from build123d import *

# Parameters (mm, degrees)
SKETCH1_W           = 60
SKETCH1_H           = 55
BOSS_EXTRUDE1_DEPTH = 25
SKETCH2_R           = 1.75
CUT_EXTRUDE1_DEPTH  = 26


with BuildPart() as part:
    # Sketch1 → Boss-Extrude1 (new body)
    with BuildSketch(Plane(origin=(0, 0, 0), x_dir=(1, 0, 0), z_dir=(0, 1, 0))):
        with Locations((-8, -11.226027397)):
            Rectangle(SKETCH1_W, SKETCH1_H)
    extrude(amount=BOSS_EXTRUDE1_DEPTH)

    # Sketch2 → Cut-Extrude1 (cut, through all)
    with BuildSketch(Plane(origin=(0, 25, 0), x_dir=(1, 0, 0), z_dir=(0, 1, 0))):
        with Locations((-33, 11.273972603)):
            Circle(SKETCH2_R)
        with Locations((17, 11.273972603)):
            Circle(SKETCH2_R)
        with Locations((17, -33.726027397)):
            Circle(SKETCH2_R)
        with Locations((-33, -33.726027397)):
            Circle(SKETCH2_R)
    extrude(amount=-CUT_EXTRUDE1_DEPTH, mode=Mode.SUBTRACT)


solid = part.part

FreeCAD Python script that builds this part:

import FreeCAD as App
import Part
import Sketcher
Q = App.Units.Quantity

doc = App.newDocument("Part")
body = doc.addObject("PartDesign::Body", "Body")

# Sketch on XZ plane
sketch1 = body.newObject("Sketcher::SketchObject", "Sketch")
sketch1.AttachmentSupport = (doc.getObject("XZ_Plane"), [""])
sketch1.MapMode = "FlatFace"
sketch1.addGeometry([
    Part.LineSegment(App.Vector(-38, -16, 0), App.Vector(-38, 39, 0)),
    Part.LineSegment(App.Vector(-38, 39, 0), App.Vector(22, 39, 0)),
    Part.LineSegment(App.Vector(22, 39, 0), App.Vector(22, -16, 0)),
    Part.LineSegment(App.Vector(22, -16, 0), App.Vector(-38, -16, 0)),
], False)
sketch1.addConstraint([
    Sketcher.Constraint("Coincident", 0, 2, 1, 1),
    Sketcher.Constraint("Coincident", 1, 2, 2, 1),
    Sketcher.Constraint("Coincident", 2, 2, 3, 1),
    Sketcher.Constraint("Coincident", 3, 2, 0, 1),
    Sketcher.Constraint("Vertical", 0),
    Sketcher.Constraint("Horizontal", 1),
    Sketcher.Constraint("Vertical", 2),
    Sketcher.Constraint("Horizontal", 3),
    Sketcher.Constraint("DistanceX", 1, 1, 1, 2, Q("60 mm")),
    Sketcher.Constraint("DistanceY", 0, 1, 0, 2, Q("55 mm")),
    Sketcher.Constraint("DistanceX", 0, 2, -1, 1, Q("38 mm")),
    Sketcher.Constraint("DistanceY", -1, 1, 0, 2, Q("38.726027 mm")),
])
pad1 = body.newObject("PartDesign::Pad", "Pad")
pad1.Profile = sketch1
pad1.Length = 25
pad1.Reversed = True

# Sketch on XZ plane
sketch2 = body.newObject("Sketcher::SketchObject", "Sketch001")
sketch2.AttachmentSupport = (doc.getObject("XZ_Plane"), [""])
sketch2.MapMode = "FlatFace"
sketch2.AttachmentOffset = App.Placement(App.Vector(0, 0, -25), App.Rotation())
sketch2.addGeometry([
    Part.Circle(App.Vector(-33, -11.3, 0), App.Vector(0, 0, 1), 1.8),
    Part.Circle(App.Vector(17, -11.3, 0), App.Vector(0, 0, 1), 1.8),
    Part.Circle(App.Vector(17, 33.7, 0), App.Vector(0, 0, 1), 1.8),
    Part.Circle(App.Vector(-33, 33.7, 0), App.Vector(0, 0, 1), 1.8),
], False)
sketch2.addConstraint([
    Sketcher.Constraint("Equal", 0, 1),
    Sketcher.Constraint("Equal", 1, 2),
    Sketcher.Constraint("Equal", 2, 3),
    Sketcher.Constraint("Horizontal", 0, 3, 1, 3),
    Sketcher.Constraint("Horizontal", 2, 3, 3, 3),
    Sketcher.Constraint("Vertical", 1, 3, 2, 3),
    Sketcher.Constraint("Vertical", 0, 3, 3, 3),
    Sketcher.Constraint("Diameter", 0, Q("3.5 mm")),
    Sketcher.Constraint("DistanceX", 0, 3, -1, 1, Q("33 mm")),
    Sketcher.Constraint("DistanceX", -1, 1, 1, 3, Q("17 mm")),
    Sketcher.Constraint("DistanceY", 1, 3, 2, 3, Q("45 mm")),
    Sketcher.Constraint("DistanceY", 0, 3, -1, 1, Q("11.273973 mm")),
])
pocket1 = body.newObject("PartDesign::Pocket", "Pocket")
pocket1.Profile = sketch2
pocket1.Type = "ThroughAll"
pocket1.Reversed = True

doc.recompute()
